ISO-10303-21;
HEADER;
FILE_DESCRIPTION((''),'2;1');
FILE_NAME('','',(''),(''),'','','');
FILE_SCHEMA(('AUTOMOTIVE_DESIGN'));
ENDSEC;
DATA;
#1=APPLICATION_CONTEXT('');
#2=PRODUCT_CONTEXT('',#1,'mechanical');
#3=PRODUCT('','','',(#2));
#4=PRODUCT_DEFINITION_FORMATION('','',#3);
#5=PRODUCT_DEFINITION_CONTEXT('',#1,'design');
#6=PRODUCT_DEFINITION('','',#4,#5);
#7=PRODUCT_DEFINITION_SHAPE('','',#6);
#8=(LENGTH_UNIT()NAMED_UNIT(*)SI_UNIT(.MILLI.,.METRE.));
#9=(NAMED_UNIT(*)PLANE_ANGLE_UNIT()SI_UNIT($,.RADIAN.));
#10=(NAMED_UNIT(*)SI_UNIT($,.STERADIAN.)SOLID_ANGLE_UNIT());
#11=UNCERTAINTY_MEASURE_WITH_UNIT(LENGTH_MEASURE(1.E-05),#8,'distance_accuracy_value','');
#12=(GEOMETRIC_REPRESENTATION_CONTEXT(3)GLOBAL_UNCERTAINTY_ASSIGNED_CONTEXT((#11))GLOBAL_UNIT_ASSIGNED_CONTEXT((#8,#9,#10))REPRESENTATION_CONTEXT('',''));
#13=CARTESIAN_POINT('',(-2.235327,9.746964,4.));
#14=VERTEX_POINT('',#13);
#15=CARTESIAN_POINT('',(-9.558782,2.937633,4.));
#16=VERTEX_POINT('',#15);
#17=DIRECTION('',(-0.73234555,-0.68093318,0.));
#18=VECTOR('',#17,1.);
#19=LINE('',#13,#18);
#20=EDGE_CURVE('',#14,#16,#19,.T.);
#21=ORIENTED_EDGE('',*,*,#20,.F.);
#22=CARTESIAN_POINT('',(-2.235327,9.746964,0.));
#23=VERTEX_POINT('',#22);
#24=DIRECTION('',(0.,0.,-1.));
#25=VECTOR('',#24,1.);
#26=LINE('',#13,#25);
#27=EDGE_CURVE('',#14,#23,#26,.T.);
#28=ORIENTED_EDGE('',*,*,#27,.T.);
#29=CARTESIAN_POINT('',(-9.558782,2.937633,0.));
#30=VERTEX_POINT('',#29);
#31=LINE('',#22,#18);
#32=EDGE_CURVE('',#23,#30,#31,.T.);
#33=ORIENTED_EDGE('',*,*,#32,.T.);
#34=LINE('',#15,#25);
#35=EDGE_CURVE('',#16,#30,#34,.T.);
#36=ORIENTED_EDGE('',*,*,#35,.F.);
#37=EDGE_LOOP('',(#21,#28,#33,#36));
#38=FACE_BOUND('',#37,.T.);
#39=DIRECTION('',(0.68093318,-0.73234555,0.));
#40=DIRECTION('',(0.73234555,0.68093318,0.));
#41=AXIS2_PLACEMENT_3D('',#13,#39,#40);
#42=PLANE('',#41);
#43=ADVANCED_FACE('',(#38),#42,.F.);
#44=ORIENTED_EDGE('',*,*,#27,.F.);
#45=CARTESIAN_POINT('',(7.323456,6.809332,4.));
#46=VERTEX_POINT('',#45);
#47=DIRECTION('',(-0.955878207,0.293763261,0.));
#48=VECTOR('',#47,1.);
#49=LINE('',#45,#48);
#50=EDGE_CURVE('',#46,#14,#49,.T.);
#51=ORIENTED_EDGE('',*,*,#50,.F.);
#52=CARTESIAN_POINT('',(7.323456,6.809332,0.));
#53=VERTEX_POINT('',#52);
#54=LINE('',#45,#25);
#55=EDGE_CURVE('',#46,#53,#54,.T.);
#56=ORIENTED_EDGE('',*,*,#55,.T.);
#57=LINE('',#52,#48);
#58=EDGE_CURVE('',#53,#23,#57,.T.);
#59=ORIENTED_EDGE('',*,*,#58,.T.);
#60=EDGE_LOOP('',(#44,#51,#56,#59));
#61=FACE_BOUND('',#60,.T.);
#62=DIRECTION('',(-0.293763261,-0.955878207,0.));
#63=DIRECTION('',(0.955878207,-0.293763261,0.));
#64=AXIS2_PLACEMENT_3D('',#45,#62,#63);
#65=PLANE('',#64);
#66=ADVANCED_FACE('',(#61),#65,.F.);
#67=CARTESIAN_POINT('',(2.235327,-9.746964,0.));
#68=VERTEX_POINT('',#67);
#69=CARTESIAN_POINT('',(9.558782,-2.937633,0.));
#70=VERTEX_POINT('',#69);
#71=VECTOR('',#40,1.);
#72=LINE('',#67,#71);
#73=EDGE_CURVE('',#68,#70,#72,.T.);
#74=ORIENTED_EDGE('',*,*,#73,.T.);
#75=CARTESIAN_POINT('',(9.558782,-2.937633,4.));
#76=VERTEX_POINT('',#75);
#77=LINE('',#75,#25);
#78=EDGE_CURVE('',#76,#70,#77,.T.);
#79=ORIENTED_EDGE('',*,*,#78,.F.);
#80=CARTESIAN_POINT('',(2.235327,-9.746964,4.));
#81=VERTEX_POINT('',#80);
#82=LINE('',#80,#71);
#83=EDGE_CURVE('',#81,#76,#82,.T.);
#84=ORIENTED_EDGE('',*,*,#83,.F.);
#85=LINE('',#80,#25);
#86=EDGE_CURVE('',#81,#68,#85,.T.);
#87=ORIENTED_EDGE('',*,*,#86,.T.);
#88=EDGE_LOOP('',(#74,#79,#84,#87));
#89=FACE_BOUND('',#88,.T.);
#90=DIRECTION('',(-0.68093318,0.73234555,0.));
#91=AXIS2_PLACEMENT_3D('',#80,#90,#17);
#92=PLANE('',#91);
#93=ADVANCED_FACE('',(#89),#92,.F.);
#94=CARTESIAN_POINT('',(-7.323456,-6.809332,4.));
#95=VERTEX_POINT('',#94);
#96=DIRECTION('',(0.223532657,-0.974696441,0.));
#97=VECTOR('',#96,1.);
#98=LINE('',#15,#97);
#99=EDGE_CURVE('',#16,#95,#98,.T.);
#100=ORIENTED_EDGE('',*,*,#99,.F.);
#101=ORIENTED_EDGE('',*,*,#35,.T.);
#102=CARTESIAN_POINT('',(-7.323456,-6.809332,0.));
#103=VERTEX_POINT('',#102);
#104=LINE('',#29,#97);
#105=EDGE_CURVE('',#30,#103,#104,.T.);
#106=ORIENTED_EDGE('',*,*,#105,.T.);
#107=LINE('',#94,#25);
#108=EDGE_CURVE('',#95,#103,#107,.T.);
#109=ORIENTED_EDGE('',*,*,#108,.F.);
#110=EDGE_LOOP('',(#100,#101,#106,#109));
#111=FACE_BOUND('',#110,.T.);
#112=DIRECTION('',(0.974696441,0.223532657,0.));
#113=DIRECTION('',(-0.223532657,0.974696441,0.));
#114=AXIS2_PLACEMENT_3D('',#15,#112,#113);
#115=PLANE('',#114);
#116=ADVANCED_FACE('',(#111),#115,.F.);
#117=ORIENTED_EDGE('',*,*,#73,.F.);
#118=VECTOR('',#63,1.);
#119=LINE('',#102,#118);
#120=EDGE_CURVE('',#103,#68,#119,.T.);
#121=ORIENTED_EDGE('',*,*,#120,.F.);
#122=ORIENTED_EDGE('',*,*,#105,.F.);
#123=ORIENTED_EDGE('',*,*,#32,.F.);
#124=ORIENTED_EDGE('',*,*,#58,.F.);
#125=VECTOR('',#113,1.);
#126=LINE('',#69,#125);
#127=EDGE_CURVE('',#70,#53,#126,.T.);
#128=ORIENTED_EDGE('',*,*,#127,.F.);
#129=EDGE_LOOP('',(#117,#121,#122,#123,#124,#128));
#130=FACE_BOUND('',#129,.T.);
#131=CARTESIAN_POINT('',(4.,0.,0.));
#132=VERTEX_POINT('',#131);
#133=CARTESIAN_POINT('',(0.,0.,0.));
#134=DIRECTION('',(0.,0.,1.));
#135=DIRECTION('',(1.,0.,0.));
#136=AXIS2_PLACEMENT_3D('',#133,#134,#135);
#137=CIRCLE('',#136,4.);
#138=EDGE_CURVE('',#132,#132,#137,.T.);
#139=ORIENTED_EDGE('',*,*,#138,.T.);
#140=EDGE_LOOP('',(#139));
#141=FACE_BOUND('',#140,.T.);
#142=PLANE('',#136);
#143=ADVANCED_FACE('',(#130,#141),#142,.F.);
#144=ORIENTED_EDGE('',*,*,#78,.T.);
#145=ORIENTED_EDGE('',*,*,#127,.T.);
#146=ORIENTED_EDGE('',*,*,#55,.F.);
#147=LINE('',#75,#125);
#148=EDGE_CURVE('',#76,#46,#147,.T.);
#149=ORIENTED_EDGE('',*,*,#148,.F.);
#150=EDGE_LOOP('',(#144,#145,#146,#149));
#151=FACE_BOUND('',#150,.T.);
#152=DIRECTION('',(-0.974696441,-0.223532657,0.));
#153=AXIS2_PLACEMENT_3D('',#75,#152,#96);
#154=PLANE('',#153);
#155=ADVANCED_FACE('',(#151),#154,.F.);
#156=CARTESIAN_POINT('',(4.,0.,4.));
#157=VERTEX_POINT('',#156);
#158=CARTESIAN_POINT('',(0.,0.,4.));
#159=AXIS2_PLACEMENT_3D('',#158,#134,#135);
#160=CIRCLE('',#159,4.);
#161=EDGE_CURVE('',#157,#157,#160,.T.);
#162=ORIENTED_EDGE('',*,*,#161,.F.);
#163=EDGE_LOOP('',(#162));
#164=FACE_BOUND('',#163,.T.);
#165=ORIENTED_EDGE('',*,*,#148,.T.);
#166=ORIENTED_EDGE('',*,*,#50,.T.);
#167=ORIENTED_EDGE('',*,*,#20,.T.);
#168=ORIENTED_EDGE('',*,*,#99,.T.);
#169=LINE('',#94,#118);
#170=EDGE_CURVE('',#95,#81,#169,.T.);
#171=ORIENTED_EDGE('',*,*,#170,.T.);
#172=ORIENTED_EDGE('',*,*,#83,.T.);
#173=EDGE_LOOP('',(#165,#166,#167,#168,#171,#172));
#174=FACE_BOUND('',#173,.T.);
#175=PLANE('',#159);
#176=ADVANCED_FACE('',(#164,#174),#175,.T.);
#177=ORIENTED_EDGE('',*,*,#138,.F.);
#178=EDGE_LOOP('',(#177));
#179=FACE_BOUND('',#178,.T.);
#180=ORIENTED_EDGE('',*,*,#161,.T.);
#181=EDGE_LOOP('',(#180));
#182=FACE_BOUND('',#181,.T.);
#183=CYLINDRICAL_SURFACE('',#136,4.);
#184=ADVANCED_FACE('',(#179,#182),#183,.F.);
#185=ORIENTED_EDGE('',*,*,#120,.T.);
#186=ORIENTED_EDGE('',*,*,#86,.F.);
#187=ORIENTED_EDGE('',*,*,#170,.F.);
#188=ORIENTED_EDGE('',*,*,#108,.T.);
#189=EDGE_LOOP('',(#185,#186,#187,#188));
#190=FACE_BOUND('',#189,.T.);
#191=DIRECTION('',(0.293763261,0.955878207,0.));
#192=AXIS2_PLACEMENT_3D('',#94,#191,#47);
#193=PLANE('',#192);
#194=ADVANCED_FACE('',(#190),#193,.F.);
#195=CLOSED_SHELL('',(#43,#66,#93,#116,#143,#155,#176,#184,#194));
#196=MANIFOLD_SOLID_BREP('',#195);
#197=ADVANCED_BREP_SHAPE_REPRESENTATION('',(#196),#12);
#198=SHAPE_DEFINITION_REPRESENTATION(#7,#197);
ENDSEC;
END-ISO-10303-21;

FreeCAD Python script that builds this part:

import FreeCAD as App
import Part
import Sketcher


def add_polygon(sketch, points):
    """Adds a closed chain of lines whose ends are joined by coincident constraints."""
    first, n = sketch.GeometryCount, len(points)
    for a, b in zip(points, points[1:] + points[:1]):
        sketch.addGeometry(Part.LineSegment(App.Vector(*a, 0), App.Vector(*b, 0)), False)
    for i in range(n):
        sketch.addConstraint(Sketcher.Constraint("Coincident", first + i, 2, first + (i + 1) % n, 1))

doc = App.newDocument("Part")
params = doc.addObject("Spreadsheet::Sheet", "Params")
for row, (alias, value) in enumerate([
    ("sketch1_length", "10 mm"),
    ("pad1_length", "4 mm"),
    ("sketch2_diameter", "8 mm"),
], start=1):
    params.set(f"A{row}", alias)
    params.set(f"B{row}", "=" + value)
    params.setAlias(f"B{row}", alias)

body = doc.addObject("PartDesign::Body", "Body")

# Sketch on XY plane
sketch1 = body.newObject("Sketcher::SketchObject", "Sketch")
sketch1.AttachmentSupport = (doc.getObject("XY_Plane"), [""])
sketch1.MapMode = "FlatFace"
add_polygon(sketch1, [(-9.558782, 2.937633), (-7.323456, -6.809332), (2.235327, -9.746964), (9.558782, -2.937633), (7.323456, 6.809332), (-2.235327, 9.746964)])  # lines 0-5
sketch1.addConstraint([
    Sketcher.Constraint("Symmetric", 0, 2, 3, 2, -1, 1),
    Sketcher.Constraint("Symmetric", 1, 2, 4, 2, -1, 1),
    Sketcher.Constraint("Symmetric", 2, 2, 5, 2, -1, 1),
    Sketcher.Constraint("Equal", 0, 1),
    Sketcher.Constraint("Equal", 1, 2),
    Sketcher.Constraint("Distance", 0, 10.0),
    Sketcher.Constraint("DistanceY", 0, 2, 2, 2, 3.871699),
    Sketcher.Constraint("DistanceY", 0, 2, -1, 1, 6.809332),
    Sketcher.Constraint("DistanceY", 1, 2, 2, 2, 6.809332),
])
sketch1.setExpression("Constraints[11]", "Params.sketch1_length")
pad1 = body.newObject("PartDesign::Pad", "Pad")
pad1.Profile = sketch1
pad1.setExpression("Length", "Params.pad1_length")

# Sketch on XY plane
sketch2 = body.newObject("Sketcher::SketchObject", "Sketch001")
sketch2.AttachmentSupport = (doc.getObject("XY_Plane"), [""])
sketch2.MapMode = "FlatFace"
sketch2.AttachmentOffset = App.Placement(App.Vector(0, 0, 4), App.Rotation())
sketch2.addGeometry(Part.Circle(App.Vector(0, 0, 0), App.Vector(0, 0, 1), 4), False)
sketch2.addConstraint([
    Sketcher.Constraint("Coincident", 0, 3, -1, 1),
    Sketcher.Constraint("Diameter", 0, 8.0),
])
sketch2.setExpression("Constraints[1]", "Params.sketch2_diameter")
pocket1 = body.newObject("PartDesign::Pocket", "Pocket")
pocket1.Profile = sketch2
pocket1.Type = "ThroughAll"

doc.recompute()
